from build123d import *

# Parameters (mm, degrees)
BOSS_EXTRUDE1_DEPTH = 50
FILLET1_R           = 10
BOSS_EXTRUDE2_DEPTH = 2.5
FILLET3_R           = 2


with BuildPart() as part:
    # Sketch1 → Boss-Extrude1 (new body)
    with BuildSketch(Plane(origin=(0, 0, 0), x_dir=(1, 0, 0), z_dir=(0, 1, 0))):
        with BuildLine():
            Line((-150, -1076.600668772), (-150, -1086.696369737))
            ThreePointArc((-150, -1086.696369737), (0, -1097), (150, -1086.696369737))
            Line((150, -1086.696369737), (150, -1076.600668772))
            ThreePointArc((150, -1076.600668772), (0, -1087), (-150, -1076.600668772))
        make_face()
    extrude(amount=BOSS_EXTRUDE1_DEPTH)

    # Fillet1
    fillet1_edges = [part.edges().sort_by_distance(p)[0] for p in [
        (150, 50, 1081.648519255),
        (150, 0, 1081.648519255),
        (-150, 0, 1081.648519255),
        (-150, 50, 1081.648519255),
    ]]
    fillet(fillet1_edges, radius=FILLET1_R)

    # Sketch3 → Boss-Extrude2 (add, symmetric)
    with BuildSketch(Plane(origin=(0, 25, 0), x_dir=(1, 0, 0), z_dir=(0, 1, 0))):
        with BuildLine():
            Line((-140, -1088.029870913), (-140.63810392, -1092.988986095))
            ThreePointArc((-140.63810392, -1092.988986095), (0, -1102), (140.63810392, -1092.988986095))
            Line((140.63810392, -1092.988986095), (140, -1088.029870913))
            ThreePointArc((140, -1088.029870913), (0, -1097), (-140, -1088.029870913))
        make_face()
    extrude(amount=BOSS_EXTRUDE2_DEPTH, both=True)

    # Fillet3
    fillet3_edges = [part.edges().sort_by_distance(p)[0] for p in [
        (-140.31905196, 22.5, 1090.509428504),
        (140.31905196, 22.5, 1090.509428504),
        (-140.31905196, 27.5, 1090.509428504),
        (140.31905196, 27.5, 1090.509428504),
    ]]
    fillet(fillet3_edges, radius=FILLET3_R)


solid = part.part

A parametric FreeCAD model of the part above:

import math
import FreeCAD as App
import Part
import Sketcher
Q = App.Units.Quantity


def edges_at(feature, points):
    """Names of the edges that pass closest to the given points."""
    edges = feature.Shape.Edges
    near = lambda p: min(range(len(edges)), key=lambda i: edges[i].distToShape(Part.Vertex(*p))[0])
    return sorted({f"Edge{near(p) + 1}" for p in points})

doc = App.newDocument("Part")
body = doc.addObject("PartDesign::Body", "Body")

sketch1 = body.newObject("Sketcher::SketchObject", "Sketch")
sketch1.AttachmentSupport = (doc.getObject("XZ_Plane"), [""])
sketch1.MapMode = "FlatFace"
sketch1.addGeometry(Part.LineSegment(App.Vector(-150, 1077, 0), App.Vector(-150, 1087, 0)), False)
sketch1.addGeometry(Part.ArcOfCircle(Part.Circle(App.Vector(0, 0, 0), App.Vector(0, 0, 1), 1097), math.radians(82.14), math.radians(97.86)), False)
sketch1.addGeometry(Part.LineSegment(App.Vector(150, 1087, 0), App.Vector(150, 1077, 0)), False)
sketch1.addGeometry(Part.ArcOfCircle(Part.Circle(App.Vector(0, 0, 0), App.Vector(0, 0, 1), 1087), math.radians(82.07), math.radians(97.93)), False)
sketch1.addConstraint(Sketcher.Constraint("Coincident", 0, 2, 1, 2))
sketch1.addConstraint(Sketcher.Constraint("Coincident", 1, 1, 2, 1))
sketch1.addConstraint(Sketcher.Constraint("Coincident", 2, 2, 3, 1))
sketch1.addConstraint(Sketcher.Constraint("Coincident", 3, 2, 0, 1))
sketch1.addConstraint(Sketcher.Constraint("Vertical", 0))
sketch1.addConstraint(Sketcher.Constraint("Vertical", 2))
sketch1.addConstraint(Sketcher.Constraint("Coincident", 1, 3, -1, 1))
sketch1.addConstraint(Sketcher.Constraint("Coincident", 3, 3, -1, 1))
sketch1.addConstraint(Sketcher.Constraint("Radius", 1, Q("1097 mm")))
sketch1.addConstraint(Sketcher.Constraint("Radius", 3, Q("1087 mm")))
sketch1.addConstraint(Sketcher.Constraint("DistanceX", 0, 2, -1, 1, Q("150 mm")))
sketch1.addConstraint(Sketcher.Constraint("DistanceX", -1, 1, 2, 2, Q("150 mm")))
pad1 = body.newObject("PartDesign::Pad", "Pad")
pad1.Profile = sketch1
pad1.Length = 50
pad1.Reversed = True
doc.recompute()

fillet = body.newObject("PartDesign::Fillet", "Fillet")
fillet.Base = (pad1, edges_at(pad1, [
    (150, 50, 1081.649),
    (150, 0, 1081.649),
    (-150, 0, 1081.649),
    (-150, 50, 1081.649),
]))
fillet.Radius = 10

sketch2 = body.newObject("Sketcher::SketchObject", "Sketch001")
sketch2.AttachmentSupport = (doc.getObject("XZ_Plane"), [""])
sketch2.MapMode = "FlatFace"
sketch2.AttachmentOffset = App.Placement(App.Vector(0, 0, -25), App.Rotation())
sketch2.addGeometry(Part.LineSegment(App.Vector(-140, 1088, 0), App.Vector(-141, 1093, 0)), False)
sketch2.addGeometry(Part.ArcOfCircle(Part.Circle(App.Vector(0, 0, 0), App.Vector(0, 0, 1), 1102), math.radians(82.67), math.radians(97.33)), False)
sketch2.addGeometry(Part.LineSegment(App.Vector(141, 1093, 0), App.Vector(140, 1088, 0)), False)
sketch2.addGeometry(Part.ArcOfCircle(Part.Circle(App.Vector(0, 0, 0), App.Vector(0, 0, 1), 1097), math.radians(82.67), math.radians(97.33)), False)
sketch2.addConstraint(Sketcher.Constraint("Coincident", 0, 2, 1, 2))
sketch2.addConstraint(Sketcher.Constraint("Coincident", 1, 1, 2, 1))
sketch2.addConstraint(Sketcher.Constraint("Coincident", 2, 2, 3, 1))
sketch2.addConstraint(Sketcher.Constraint("Coincident", 3, 2, 0, 1))
sketch2.addConstraint(Sketcher.Constraint("Coincident", 1, 3, -1, 1))
sketch2.addConstraint(Sketcher.Constraint("Coincident", 3, 3, -1, 1))
sketch2.addConstraint(Sketcher.Constraint("Radius", 1, Q("1102 mm")))
sketch2.addConstraint(Sketcher.Constraint("Radius", 3, Q("1097 mm")))
sketch2.addConstraint(Sketcher.Constraint("DistanceX", -1, 1, 2, 2, Q("140 mm")))
sketch2.addConstraint(Sketcher.Constraint("DistanceX", 0, 2, -1, 1, Q("140.638104 mm")))
sketch2.addConstraint(Sketcher.Constraint("Angle", 0, Q("97.332128 deg")))
sketch2.addConstraint(Sketcher.Constraint("Angle", 2, Q("-97.332128 deg")))
pad2 = body.newObject("PartDesign::Pad", "Pad001")
pad2.Profile = sketch2
pad2.Length = 5
pad2.Midplane = True
doc.recompute()

fillet2 = body.newObject("PartDesign::Fillet", "Fillet001")
fillet2.Base = (pad2, edges_at(pad2, [
    (-140.319, 22.5, 1090.509),
    (140.319, 22.5, 1090.509),
    (-140.319, 27.5, 1090.509),
    (140.319, 27.5, 1090.509),
]))
fillet2.Radius = 2

doc.recompute()
